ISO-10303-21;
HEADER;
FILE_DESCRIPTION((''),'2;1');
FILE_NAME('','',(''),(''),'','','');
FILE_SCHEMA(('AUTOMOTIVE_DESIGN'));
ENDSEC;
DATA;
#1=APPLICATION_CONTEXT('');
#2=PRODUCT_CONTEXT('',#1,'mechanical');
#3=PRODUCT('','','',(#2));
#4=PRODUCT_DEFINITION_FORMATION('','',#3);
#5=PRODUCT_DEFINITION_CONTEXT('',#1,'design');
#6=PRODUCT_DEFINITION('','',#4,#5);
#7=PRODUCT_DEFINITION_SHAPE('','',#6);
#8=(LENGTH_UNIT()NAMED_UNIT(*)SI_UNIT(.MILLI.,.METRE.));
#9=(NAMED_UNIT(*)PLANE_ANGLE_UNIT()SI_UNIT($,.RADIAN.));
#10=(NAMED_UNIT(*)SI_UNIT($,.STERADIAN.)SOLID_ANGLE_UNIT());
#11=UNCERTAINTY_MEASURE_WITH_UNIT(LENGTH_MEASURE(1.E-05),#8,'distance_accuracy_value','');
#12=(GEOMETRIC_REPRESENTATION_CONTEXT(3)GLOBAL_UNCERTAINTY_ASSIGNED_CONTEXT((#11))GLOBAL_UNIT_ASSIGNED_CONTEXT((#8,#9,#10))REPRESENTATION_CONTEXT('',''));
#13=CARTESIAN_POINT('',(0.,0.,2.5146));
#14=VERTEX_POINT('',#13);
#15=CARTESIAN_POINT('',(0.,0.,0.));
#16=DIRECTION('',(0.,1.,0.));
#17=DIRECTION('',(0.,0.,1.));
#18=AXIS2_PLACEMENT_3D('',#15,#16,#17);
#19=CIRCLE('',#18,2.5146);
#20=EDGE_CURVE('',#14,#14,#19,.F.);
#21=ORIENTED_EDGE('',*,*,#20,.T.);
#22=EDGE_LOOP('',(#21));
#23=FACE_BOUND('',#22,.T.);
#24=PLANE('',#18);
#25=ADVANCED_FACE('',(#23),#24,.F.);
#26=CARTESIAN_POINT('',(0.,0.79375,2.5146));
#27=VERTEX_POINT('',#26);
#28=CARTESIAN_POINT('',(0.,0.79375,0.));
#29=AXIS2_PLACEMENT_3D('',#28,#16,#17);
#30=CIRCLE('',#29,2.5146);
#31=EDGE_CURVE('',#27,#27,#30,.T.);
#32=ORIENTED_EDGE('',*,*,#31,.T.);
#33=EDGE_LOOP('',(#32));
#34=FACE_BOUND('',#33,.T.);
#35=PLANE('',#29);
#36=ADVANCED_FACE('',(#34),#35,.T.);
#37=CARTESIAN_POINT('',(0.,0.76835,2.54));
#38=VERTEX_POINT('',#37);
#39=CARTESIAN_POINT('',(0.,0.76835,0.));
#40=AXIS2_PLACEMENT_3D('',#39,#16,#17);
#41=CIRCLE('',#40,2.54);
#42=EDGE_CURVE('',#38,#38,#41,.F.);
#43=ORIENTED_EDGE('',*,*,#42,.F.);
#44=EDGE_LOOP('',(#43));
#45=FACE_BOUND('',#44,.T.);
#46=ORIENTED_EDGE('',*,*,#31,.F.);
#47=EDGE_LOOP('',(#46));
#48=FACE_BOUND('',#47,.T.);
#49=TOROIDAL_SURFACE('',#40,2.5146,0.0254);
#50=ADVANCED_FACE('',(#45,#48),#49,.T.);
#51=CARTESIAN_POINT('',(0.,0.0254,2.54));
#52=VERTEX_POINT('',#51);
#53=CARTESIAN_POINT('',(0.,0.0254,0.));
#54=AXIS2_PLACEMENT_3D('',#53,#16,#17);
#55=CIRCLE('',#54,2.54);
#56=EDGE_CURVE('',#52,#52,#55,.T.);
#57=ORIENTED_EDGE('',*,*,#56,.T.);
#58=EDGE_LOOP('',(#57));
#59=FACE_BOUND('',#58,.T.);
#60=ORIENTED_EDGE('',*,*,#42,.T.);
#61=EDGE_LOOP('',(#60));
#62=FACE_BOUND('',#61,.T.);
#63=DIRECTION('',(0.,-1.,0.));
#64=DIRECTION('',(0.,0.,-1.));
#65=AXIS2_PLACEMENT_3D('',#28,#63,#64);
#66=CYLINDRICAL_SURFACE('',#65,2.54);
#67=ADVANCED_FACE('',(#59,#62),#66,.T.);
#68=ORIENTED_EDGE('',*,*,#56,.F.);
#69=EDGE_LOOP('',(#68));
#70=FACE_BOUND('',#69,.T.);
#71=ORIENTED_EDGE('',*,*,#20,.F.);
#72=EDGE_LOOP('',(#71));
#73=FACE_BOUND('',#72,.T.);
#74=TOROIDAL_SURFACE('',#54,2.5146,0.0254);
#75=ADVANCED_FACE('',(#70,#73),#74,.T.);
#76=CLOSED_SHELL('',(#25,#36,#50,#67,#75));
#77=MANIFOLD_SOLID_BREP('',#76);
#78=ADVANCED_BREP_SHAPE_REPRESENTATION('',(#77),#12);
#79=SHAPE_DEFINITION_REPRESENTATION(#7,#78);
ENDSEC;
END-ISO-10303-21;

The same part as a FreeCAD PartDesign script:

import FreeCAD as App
import Part
import Sketcher
Q = App.Units.Quantity


def edges_at(feature, points):
    """Names of the edges that pass closest to the given points."""
    edges = feature.Shape.Edges
    near = lambda p: min(range(len(edges)), key=lambda i: edges[i].distToShape(Part.Vertex(*p))[0])
    return sorted({f"Edge{near(p) + 1}" for p in points})

doc = App.newDocument("Part")
params = doc.addObject("Spreadsheet::Sheet", "Params")
for row, (alias, value) in enumerate([
    ("sketch1_diameter", "0.2 in"),
    ("pad1_length", "0.03125 in"),
    ("fillet_radius", "0.001 in"),
], start=1):
    params.set(f"A{row}", alias)
    params.set(f"B{row}", "=" + value)
    params.setAlias(f"B{row}", alias)

body = doc.addObject("PartDesign::Body", "Body")

sketch1 = doc.addObject("Sketcher::SketchObject", "Sketch")
body.addObject(sketch1)
sketch1.AttachmentSupport = (doc.XZ_Plane, [""])
sketch1.MapMode = "FlatFace"
sketch1.addGeometry(Part.Circle(App.Vector(0, 0, 0), App.Vector(0, 0, 1), 2.54), False)
sketch1.addConstraint([
    Sketcher.Constraint("Coincident", 0, 3, -1, 1),
    Sketcher.Constraint("Diameter", 0, Q("0.2 in")),
])
sketch1.setExpression("Constraints[1]", "Params.sketch1_diameter")
pad1 = doc.addObject("PartDesign::Pad", "Pad")
body.addObject(pad1)
pad1.Profile = sketch1
pad1.setExpression("Length", "Params.pad1_length")
pad1.Reversed = True
doc.recompute()

fillet = doc.addObject("PartDesign::Fillet", "Fillet")
body.addObject(fillet)
fillet.Base = (pad1, edges_at(pad1, [(0, 0, -2.54), (0, 0.794, -2.54)]))
fillet.setExpression("Radius", "Params.fillet_radius")

doc.recompute()
